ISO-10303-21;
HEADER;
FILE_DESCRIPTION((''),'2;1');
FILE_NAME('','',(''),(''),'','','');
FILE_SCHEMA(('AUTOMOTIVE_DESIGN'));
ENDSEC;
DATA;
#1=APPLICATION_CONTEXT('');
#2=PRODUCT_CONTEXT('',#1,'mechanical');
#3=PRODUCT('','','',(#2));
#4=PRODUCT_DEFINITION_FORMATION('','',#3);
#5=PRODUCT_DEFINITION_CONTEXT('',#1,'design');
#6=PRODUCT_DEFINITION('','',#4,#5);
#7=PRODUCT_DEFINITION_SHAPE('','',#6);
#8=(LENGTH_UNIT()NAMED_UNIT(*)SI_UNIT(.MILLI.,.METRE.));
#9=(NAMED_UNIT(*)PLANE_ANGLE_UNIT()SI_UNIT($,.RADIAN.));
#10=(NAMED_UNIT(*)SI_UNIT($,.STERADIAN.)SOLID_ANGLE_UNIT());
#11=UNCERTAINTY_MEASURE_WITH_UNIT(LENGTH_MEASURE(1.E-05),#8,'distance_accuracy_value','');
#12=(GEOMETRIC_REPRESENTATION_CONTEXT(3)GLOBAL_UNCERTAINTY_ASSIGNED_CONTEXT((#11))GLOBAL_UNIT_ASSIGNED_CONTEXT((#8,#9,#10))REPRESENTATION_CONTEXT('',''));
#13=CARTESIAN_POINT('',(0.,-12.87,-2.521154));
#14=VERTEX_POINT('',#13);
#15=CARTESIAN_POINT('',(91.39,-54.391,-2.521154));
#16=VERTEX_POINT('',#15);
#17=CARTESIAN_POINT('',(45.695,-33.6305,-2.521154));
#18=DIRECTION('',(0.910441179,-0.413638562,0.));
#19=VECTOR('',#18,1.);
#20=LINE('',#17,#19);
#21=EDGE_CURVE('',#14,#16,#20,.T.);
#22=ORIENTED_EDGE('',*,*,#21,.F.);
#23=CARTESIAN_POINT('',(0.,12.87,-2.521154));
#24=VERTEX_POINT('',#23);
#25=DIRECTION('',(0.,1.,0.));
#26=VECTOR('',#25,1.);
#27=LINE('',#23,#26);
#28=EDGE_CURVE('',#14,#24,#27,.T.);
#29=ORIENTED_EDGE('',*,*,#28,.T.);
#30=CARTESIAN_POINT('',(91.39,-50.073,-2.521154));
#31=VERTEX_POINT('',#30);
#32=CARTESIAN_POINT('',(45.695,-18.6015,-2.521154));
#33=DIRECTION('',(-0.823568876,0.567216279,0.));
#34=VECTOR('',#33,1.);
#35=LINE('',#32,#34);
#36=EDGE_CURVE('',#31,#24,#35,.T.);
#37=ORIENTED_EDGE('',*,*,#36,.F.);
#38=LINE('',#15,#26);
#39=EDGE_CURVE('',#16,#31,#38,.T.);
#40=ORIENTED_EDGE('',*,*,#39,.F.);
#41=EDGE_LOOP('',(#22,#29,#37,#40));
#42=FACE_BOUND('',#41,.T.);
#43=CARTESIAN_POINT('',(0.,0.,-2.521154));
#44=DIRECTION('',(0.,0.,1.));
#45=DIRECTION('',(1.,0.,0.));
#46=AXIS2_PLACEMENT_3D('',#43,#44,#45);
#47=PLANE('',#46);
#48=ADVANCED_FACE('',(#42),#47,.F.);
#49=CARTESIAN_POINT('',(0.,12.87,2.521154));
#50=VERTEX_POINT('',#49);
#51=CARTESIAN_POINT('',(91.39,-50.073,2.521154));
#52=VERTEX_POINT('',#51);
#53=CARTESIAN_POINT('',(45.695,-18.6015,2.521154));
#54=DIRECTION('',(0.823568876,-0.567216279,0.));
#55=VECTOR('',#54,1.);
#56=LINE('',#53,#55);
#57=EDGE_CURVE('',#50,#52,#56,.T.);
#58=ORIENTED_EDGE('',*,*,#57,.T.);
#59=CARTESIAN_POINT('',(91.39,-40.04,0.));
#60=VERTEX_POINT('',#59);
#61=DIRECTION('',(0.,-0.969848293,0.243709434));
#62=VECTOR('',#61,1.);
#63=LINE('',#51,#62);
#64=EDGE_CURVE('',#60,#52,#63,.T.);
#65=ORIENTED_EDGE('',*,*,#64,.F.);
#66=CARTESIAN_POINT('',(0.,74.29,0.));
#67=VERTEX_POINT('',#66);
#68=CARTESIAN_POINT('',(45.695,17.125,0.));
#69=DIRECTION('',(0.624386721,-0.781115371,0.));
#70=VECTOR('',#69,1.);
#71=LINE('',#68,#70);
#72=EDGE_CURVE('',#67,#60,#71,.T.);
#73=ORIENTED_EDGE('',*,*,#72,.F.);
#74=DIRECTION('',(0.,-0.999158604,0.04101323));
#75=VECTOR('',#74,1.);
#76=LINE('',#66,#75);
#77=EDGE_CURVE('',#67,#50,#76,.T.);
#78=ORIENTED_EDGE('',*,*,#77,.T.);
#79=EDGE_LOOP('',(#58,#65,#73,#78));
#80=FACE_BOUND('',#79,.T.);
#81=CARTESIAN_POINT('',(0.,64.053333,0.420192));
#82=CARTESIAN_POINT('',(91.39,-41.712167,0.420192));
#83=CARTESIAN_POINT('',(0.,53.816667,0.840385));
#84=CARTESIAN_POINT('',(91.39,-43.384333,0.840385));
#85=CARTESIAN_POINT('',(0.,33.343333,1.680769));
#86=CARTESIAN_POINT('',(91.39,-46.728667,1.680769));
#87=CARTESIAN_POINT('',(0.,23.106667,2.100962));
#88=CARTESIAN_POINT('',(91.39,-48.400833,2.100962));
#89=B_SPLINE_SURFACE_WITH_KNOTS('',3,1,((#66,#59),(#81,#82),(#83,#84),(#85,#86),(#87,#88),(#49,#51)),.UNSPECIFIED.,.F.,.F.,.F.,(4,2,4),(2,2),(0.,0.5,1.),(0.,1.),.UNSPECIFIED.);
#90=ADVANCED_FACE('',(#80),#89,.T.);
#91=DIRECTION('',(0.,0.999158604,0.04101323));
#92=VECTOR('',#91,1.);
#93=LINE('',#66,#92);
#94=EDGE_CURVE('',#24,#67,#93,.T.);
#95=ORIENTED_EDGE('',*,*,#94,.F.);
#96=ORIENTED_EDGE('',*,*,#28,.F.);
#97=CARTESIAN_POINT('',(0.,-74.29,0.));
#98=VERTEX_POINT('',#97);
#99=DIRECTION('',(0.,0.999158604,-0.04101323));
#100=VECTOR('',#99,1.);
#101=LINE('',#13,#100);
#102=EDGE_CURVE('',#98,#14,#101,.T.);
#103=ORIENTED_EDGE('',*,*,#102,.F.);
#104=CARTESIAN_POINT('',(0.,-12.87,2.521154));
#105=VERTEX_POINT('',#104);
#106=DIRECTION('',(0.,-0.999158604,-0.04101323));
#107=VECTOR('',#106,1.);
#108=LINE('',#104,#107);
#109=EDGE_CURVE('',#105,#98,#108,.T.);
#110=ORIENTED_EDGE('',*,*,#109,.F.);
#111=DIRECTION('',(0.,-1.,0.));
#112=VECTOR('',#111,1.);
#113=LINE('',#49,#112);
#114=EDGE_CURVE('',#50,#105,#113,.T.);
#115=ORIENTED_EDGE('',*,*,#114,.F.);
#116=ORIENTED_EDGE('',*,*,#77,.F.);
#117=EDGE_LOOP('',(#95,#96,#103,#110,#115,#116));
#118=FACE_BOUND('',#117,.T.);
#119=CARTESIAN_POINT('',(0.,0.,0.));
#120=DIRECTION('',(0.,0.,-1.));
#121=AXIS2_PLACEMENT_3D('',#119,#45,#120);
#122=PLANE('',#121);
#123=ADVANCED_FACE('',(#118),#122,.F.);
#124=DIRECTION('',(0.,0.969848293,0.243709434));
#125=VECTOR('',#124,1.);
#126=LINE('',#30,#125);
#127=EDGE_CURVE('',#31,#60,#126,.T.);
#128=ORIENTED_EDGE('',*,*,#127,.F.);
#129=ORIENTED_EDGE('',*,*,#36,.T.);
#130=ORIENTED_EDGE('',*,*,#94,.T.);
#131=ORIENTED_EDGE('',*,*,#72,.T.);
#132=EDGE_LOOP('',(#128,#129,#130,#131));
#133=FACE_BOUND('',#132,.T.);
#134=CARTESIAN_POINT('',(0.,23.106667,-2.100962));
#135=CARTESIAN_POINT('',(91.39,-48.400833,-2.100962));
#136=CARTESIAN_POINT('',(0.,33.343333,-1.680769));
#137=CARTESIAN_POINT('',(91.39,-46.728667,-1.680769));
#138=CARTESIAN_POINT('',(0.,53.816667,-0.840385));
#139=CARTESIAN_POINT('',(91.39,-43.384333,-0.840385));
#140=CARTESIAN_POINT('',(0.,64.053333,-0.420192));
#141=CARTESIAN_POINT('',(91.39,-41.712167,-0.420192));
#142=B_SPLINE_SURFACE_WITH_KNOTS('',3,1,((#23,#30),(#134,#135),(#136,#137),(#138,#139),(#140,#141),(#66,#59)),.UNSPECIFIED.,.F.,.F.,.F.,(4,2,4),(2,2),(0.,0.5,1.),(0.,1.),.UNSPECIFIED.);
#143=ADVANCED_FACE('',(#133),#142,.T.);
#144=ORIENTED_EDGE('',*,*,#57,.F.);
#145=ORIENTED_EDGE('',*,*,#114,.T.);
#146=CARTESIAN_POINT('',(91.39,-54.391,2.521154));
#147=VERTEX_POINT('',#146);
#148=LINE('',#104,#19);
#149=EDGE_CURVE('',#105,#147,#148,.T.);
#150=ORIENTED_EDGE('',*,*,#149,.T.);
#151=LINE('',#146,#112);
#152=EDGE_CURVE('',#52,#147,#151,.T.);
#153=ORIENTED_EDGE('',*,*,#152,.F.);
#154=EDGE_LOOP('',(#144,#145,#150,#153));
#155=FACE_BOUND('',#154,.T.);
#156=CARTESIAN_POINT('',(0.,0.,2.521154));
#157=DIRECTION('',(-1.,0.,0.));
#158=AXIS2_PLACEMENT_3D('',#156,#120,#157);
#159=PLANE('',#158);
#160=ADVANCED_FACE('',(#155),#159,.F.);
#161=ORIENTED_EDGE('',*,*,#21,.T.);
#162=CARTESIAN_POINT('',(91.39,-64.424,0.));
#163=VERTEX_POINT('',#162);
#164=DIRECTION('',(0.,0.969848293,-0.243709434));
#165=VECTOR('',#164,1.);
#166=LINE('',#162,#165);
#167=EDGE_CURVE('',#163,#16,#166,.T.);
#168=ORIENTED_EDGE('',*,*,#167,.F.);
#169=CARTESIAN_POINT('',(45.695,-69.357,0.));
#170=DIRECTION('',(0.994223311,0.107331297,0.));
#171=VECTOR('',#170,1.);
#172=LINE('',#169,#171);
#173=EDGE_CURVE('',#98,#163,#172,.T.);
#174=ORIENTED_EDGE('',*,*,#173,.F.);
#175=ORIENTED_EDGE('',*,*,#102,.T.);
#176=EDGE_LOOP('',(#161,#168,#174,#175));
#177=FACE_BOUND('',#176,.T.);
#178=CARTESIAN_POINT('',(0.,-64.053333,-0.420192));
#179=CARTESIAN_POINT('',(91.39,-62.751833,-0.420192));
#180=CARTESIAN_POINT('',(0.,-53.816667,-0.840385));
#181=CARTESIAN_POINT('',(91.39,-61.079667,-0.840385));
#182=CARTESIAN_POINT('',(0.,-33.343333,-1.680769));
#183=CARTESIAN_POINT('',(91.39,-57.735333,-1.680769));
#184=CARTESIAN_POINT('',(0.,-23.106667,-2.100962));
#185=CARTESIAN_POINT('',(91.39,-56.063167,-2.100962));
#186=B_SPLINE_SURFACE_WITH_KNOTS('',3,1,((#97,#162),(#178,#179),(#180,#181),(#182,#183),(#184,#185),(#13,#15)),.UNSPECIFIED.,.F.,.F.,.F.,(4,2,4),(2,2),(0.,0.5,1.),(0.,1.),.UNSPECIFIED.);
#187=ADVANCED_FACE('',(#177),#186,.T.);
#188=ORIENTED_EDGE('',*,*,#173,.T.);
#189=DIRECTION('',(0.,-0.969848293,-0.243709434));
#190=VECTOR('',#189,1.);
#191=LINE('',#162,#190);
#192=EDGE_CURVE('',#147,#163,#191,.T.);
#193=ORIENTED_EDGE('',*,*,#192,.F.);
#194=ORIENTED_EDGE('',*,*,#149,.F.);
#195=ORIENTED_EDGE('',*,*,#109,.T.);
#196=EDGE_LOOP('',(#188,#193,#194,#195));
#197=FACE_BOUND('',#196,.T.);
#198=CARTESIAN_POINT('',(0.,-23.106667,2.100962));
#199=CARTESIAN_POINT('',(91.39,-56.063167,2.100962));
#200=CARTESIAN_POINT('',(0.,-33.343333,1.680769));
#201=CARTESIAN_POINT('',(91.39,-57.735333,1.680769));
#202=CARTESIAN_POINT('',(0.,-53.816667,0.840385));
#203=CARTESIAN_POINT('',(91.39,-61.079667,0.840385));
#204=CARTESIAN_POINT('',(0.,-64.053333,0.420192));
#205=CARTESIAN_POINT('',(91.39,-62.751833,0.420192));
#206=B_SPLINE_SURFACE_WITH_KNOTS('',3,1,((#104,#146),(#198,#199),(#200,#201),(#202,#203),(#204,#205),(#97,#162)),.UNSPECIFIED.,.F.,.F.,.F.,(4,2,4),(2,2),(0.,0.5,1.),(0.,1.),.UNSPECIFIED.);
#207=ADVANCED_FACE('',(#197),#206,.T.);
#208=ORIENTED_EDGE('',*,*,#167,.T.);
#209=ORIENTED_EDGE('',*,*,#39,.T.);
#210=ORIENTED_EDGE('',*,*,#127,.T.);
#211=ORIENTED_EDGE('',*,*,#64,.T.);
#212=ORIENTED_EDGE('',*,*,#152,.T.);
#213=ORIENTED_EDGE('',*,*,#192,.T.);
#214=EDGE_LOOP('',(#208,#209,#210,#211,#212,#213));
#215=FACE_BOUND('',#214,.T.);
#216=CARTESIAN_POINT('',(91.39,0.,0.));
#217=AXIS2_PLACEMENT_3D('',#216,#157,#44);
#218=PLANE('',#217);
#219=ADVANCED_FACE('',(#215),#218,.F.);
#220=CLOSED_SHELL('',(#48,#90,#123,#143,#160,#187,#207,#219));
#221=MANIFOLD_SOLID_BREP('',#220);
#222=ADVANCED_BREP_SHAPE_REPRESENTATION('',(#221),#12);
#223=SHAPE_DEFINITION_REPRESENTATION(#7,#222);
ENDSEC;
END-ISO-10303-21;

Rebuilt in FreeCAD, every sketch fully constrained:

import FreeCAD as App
import Part
import Sketcher
Q = App.Units.Quantity


def add_polygon(sketch, points):
    """Adds a closed chain of lines whose ends are joined by coincident constraints."""
    first, n = sketch.GeometryCount, len(points)
    for a, b in zip(points, points[1:] + points[:1]):
        sketch.addGeometry(Part.LineSegment(App.Vector(*a, 0), App.Vector(*b, 0)), False)
    for i in range(n):
        sketch.addConstraint(Sketcher.Constraint("Coincident", first + i, 2, first + (i + 1) % n, 1))

doc = App.newDocument("Part")
body = doc.addObject("PartDesign::Body", "Body")

# Sketch on YZ plane
sketch1 = body.newObject("Sketcher::SketchObject", "Sketch")
sketch1.AttachmentSupport = (doc.getObject("YZ_Plane"), [""])
sketch1.MapMode = "FlatFace"
add_polygon(sketch1, [(13, -3), (74, 0), (13, 3), (-13, 3), (-74, 0), (-13, -3)])  # lines 0-5
sketch1.addConstraint([
    Sketcher.Constraint("Horizontal", 2),
    Sketcher.Constraint("Horizontal", 5),
    Sketcher.Constraint("Symmetric", 0, 2, 3, 2, -1, 1),
    Sketcher.Constraint("Symmetric", 1, 2, 4, 2, -1, 1),
    Sketcher.Constraint("PointOnObject", 0, 2, -1),
    Sketcher.Constraint("Parallel", 0, 3),
    Sketcher.Constraint("Vertical", 2, 2, 4, 2),
    Sketcher.Constraint("DistanceX", 2, 2, 2, 1, Q("25.74 mm")),
    Sketcher.Constraint("DistanceX", -1, 1, 0, 2, Q("74.29 mm")),
    Sketcher.Constraint("Distance", 0, Q("61.471722 mm")),
])

# Sketch on YZ plane
sketch2 = body.newObject("Sketcher::SketchObject", "Sketch001")
sketch2.AttachmentSupport = (doc.getObject("YZ_Plane"), [""])
sketch2.MapMode = "FlatFace"
sketch2.AttachmentOffset = App.Placement(App.Vector(0, 0, 91.39), App.Rotation())
add_polygon(sketch2, [(-64.4, 0), (-54.4, -2.5), (-50.1, -2.5), (-40, 0), (-50.1, 2.5), (-54.4, 2.5)])  # lines 0-5
sketch2.addConstraint([
    Sketcher.Constraint("Horizontal", 1),
    Sketcher.Constraint("Horizontal", 4),
    Sketcher.Constraint("Symmetric", 1, 2, 3, 2, -1),
    Sketcher.Constraint("PointOnObject", 2, 2, -1),
    Sketcher.Constraint("PointOnObject", 5, 2, -1),
    Sketcher.Constraint("Parallel", 0, 3),
    Sketcher.Constraint("Parallel", 2, 5),
    Sketcher.Constraint("DistanceX", 1, 1, 1, 2, Q("0.17 in")),
    Sketcher.Constraint("DistanceX", 5, 2, 2, 2, Q("0.96 in")),
    Sketcher.Constraint("DistanceX", 0, 2, -1, 1, Q("54.391 mm")),
    Sketcher.Constraint("Distance", 0, Q("10.344917 mm")),
])

additiveloft = body.newObject("PartDesign::AdditiveLoft", "AdditiveLoft")
additiveloft.Profile = sketch1
additiveloft.Sections = [sketch2]

doc.recompute()
